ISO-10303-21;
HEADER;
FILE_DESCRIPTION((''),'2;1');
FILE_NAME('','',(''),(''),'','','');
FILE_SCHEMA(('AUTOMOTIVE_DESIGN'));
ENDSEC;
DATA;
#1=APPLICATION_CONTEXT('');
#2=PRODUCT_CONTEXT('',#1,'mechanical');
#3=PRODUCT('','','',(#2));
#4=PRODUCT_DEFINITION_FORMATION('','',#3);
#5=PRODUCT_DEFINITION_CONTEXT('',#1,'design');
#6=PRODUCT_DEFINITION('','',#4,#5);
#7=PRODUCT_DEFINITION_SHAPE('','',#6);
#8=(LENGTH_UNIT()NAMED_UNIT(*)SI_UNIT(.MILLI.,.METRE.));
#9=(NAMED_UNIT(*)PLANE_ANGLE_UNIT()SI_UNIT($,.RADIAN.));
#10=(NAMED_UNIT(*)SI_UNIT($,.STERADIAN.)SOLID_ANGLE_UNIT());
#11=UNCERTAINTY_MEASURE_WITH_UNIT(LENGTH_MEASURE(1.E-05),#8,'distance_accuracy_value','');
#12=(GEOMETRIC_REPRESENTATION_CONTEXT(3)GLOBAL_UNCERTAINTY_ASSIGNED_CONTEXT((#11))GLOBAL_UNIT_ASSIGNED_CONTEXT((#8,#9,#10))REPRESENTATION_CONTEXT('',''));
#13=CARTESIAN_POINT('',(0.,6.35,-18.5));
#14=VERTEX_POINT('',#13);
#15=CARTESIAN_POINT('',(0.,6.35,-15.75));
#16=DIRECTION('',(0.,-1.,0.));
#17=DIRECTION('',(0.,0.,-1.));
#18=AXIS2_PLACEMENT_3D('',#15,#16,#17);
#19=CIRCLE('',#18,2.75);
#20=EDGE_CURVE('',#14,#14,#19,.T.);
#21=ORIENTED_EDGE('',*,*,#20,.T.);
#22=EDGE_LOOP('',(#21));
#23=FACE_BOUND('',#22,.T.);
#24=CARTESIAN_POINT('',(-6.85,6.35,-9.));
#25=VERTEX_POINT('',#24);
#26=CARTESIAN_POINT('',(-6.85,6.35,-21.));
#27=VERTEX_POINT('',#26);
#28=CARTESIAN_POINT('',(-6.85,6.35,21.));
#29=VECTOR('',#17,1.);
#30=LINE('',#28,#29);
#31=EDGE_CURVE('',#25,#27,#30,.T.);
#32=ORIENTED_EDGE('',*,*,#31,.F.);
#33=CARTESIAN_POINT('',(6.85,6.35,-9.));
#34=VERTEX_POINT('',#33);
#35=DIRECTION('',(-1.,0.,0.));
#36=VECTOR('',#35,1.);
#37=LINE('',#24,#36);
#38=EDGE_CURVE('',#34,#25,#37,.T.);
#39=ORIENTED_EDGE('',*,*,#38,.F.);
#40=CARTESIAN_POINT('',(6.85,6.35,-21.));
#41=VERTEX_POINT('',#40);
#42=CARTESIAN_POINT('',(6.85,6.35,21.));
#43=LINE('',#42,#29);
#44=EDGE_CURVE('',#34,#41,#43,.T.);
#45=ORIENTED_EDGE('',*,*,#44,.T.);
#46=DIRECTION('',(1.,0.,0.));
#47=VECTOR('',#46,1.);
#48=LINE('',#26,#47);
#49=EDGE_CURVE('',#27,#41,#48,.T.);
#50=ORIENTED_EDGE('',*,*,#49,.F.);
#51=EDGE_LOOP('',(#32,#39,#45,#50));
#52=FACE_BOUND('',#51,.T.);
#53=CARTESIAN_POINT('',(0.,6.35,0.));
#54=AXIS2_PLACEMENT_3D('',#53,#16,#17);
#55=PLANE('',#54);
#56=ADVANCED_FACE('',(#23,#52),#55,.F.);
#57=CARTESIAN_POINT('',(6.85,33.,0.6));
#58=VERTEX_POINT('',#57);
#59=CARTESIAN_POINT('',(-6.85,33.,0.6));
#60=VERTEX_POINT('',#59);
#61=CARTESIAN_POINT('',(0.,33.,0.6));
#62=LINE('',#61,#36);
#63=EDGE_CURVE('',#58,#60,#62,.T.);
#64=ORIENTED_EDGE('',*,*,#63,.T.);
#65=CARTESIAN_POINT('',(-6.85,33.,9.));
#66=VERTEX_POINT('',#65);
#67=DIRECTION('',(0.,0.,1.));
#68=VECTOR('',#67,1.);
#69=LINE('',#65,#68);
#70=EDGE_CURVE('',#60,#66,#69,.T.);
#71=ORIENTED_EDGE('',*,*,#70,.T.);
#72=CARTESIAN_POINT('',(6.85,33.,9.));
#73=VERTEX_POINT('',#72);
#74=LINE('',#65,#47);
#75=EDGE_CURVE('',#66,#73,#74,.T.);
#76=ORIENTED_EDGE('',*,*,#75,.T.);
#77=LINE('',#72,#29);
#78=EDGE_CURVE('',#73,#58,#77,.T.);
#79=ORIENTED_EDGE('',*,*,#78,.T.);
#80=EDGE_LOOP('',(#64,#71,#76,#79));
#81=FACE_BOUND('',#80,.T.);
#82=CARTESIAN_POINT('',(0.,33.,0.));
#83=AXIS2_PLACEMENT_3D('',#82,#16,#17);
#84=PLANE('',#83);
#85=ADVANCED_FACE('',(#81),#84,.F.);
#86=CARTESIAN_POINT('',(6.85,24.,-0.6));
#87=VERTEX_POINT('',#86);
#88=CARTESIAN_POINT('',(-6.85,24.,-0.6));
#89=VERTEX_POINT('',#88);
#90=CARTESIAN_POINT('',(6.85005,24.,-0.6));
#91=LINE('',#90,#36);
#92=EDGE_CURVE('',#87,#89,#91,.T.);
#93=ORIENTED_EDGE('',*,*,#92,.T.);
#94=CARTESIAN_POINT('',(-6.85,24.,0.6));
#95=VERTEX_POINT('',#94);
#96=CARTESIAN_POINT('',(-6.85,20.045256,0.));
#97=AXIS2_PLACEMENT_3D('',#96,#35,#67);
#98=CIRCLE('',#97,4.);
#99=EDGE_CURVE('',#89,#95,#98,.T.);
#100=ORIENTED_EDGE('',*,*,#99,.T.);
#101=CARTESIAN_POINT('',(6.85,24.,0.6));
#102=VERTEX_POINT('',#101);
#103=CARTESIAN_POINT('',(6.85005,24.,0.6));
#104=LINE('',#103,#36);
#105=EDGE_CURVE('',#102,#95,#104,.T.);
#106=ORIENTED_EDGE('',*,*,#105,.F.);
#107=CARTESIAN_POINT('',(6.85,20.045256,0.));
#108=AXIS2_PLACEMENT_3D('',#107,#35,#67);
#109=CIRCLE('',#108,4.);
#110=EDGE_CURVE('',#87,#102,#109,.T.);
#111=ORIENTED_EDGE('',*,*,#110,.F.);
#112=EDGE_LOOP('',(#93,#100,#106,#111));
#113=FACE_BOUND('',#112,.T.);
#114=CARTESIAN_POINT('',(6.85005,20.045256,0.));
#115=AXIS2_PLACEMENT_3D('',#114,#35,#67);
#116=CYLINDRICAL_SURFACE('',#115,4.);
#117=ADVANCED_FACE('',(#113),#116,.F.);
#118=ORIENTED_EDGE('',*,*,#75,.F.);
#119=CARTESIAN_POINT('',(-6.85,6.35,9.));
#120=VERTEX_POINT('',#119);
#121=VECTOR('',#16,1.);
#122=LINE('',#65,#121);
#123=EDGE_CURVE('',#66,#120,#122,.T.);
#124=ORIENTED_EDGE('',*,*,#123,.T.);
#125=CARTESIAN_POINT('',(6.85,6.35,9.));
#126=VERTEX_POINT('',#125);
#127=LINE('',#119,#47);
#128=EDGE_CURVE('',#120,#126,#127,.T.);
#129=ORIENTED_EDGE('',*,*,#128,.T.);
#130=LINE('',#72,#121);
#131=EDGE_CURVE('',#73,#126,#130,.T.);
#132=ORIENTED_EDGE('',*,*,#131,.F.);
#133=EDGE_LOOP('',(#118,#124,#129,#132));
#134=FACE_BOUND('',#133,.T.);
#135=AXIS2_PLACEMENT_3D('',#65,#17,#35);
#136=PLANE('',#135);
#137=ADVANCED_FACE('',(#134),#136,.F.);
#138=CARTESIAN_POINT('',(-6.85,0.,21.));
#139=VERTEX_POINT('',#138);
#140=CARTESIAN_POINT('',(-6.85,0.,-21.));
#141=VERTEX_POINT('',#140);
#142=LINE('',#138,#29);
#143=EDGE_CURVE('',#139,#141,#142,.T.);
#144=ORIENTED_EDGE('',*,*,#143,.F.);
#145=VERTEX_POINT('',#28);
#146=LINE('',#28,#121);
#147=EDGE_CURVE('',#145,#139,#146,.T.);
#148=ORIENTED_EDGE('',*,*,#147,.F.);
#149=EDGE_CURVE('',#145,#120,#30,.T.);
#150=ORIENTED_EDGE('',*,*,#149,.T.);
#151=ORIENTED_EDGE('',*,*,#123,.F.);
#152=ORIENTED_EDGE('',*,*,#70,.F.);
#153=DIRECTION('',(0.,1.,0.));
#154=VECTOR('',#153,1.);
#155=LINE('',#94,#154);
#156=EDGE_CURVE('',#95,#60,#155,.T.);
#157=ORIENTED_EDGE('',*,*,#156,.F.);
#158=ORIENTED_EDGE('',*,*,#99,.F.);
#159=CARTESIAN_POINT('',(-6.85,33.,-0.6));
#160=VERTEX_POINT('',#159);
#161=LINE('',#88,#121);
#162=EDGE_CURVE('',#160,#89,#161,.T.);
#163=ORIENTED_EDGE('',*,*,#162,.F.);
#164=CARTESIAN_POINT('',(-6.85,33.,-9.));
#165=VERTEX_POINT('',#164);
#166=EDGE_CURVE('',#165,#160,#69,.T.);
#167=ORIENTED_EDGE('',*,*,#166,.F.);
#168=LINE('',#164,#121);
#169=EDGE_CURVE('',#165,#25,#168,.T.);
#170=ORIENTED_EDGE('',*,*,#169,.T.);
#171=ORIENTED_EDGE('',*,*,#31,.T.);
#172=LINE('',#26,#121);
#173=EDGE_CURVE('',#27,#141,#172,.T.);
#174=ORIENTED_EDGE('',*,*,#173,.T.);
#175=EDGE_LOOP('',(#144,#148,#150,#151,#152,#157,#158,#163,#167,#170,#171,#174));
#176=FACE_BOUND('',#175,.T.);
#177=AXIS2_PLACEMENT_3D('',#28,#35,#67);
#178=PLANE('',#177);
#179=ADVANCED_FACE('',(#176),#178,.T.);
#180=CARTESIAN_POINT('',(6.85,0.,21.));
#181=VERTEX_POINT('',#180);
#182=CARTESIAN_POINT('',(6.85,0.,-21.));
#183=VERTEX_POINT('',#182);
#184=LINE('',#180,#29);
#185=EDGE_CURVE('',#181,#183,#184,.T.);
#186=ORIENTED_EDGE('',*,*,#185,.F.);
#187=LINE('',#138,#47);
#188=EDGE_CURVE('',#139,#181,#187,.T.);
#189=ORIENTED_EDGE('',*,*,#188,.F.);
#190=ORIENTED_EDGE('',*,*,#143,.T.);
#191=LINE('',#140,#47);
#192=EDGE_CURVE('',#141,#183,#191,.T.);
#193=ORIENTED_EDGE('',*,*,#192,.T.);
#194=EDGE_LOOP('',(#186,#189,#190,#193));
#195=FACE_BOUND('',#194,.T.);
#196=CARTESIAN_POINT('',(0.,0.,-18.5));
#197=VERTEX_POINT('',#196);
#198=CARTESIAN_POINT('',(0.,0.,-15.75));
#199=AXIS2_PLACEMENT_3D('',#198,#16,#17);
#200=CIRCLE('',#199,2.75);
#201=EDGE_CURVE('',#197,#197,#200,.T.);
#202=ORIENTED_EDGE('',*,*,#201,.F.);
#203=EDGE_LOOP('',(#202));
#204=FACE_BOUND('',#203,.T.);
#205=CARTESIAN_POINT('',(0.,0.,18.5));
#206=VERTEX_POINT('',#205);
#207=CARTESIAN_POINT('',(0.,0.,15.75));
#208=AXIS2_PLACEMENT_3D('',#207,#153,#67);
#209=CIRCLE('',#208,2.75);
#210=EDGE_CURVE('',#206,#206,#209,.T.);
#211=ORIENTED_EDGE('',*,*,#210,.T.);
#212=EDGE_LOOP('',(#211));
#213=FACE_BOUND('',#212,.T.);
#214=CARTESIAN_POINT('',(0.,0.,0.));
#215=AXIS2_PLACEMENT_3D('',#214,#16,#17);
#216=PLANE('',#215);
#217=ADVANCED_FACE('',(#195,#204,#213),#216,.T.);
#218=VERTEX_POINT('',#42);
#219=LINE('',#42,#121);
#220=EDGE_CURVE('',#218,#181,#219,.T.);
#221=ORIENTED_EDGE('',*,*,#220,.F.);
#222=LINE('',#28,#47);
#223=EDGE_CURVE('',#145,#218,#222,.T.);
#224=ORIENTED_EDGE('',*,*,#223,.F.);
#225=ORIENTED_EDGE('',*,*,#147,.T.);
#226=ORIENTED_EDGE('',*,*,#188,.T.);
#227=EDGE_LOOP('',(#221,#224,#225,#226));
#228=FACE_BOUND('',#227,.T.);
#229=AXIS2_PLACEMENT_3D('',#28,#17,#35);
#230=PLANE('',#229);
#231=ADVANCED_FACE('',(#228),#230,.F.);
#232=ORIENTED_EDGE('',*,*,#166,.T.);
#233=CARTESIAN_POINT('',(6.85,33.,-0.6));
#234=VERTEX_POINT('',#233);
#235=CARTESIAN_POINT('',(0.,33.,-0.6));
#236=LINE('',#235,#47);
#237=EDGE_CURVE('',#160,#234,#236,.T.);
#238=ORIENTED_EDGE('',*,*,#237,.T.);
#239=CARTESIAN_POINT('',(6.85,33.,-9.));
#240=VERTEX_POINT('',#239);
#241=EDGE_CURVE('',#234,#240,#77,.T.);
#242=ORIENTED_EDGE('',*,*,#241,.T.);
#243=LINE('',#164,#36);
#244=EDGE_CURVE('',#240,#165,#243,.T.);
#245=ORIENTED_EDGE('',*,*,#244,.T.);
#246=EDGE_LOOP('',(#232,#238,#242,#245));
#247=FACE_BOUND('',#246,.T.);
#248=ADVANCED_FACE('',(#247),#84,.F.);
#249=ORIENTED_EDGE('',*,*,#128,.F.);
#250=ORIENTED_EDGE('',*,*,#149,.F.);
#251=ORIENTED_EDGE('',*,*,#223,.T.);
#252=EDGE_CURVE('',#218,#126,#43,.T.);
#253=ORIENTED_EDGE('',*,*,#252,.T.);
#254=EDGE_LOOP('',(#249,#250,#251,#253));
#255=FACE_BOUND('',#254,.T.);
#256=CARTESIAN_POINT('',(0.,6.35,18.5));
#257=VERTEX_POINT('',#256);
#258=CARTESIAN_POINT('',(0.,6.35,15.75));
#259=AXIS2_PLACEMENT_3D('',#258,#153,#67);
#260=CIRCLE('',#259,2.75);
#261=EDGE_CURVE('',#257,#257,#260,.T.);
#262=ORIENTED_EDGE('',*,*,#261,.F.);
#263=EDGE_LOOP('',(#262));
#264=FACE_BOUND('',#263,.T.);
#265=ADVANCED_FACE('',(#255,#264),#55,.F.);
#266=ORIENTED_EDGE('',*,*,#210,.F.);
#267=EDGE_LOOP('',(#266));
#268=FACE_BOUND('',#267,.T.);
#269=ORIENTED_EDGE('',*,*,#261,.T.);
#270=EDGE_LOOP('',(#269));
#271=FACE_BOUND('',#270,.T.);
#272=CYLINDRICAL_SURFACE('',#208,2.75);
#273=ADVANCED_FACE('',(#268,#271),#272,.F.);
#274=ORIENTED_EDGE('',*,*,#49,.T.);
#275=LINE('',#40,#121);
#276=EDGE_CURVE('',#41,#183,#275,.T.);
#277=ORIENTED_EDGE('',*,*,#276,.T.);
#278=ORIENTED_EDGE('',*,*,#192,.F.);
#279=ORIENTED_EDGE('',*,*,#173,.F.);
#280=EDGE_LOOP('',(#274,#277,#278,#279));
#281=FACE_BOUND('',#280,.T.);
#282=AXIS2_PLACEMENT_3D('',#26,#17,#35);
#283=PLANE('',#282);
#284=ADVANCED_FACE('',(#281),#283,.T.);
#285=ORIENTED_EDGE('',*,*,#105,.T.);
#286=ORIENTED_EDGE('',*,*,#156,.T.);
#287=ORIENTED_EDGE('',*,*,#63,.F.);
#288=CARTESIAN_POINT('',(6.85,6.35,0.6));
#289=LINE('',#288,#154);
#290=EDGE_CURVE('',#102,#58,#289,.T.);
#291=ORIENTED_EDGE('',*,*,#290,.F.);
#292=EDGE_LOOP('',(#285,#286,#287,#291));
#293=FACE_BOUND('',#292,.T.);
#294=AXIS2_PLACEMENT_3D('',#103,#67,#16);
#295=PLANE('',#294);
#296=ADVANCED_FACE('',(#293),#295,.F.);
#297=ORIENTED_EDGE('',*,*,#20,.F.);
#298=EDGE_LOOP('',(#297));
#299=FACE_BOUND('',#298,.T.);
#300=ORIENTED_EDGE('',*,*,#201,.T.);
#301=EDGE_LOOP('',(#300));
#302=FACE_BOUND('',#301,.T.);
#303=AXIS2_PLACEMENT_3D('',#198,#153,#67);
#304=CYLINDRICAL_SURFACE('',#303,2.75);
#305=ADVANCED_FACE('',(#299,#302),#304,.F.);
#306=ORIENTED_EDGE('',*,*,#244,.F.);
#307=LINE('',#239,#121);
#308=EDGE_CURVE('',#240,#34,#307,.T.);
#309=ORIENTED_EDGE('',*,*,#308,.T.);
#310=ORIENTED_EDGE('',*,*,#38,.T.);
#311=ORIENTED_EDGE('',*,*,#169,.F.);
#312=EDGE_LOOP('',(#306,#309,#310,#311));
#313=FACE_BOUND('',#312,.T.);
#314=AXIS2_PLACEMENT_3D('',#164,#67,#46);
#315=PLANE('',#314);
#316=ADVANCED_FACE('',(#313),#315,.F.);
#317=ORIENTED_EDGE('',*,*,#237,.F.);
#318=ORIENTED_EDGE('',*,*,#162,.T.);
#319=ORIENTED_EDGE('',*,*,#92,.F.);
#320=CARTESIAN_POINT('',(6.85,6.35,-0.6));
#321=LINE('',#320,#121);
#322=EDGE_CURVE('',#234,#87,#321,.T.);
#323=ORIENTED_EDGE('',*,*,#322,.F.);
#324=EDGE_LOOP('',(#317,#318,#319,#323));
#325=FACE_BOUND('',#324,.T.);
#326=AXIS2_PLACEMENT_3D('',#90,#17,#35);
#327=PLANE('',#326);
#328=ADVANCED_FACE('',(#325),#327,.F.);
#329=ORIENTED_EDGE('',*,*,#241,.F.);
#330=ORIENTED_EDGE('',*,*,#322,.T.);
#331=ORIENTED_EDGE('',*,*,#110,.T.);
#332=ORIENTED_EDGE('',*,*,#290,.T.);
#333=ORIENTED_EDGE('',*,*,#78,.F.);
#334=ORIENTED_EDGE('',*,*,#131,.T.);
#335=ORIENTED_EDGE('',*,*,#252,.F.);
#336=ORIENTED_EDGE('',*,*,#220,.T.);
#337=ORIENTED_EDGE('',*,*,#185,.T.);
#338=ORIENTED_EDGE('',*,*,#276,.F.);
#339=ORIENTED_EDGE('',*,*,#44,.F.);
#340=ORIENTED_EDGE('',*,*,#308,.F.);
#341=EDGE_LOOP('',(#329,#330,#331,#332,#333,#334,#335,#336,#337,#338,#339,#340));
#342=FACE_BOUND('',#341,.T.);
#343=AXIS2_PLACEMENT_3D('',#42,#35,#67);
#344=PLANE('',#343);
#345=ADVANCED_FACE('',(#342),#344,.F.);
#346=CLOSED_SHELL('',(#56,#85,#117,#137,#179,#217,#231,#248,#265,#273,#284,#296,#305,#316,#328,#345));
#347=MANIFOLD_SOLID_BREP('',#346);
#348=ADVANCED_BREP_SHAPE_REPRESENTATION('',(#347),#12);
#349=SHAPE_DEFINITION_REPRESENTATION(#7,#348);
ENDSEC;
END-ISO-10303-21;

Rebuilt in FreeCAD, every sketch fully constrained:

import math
import FreeCAD as App
import Part
import Sketcher
from FreeCAD import Vector


def add_polygon(sketch, points):
    """Adds a closed chain of lines whose ends are joined by coincident constraints."""
    first, n = sketch.GeometryCount, len(points)
    for a, b in zip(points, points[1:] + points[:1]):
        sketch.addGeometry(Part.LineSegment(App.Vector(*a, 0), App.Vector(*b, 0)), False)
    for i in range(n):
        sketch.addConstraint(Sketcher.Constraint("Coincident", first + i, 2, first + (i + 1) % n, 1))

doc = App.newDocument("Part")
body = doc.addObject("PartDesign::Body", "Body")

sketch1 = body.newObject("Sketcher::SketchObject", "Sketch")
sketch1.AttachmentSupport = (doc.getObject("XZ_Plane"), [""])
sketch1.MapMode = "FlatFace"
add_polygon(sketch1, [(-6.85, -21), (-6.85, 21), (6.85, 21), (6.85, -21)])
sketch1.addConstraint([
    Sketcher.Constraint("Vertical", 0),
    Sketcher.Constraint("Horizontal", 1),
    Sketcher.Constraint("Vertical", 2),
    Sketcher.Constraint("Horizontal", 3),
    Sketcher.Constraint("Symmetric", 0, 2, 2, 2, -1, 1),
    Sketcher.Constraint("DistanceY", 0, 1, 0, 2, 42.0),
    Sketcher.Constraint("DistanceX", 1, 1, 1, 2, 13.7),
])
pad1 = body.newObject("PartDesign::Pad", "Pad")
pad1.Profile = sketch1
pad1.Length = 6.35
pad1.Reversed = True

sketch2 = body.newObject("Sketcher::SketchObject", "Sketch001")
sketch2.AttachmentSupport = (doc.getObject("XZ_Plane"), [""])
sketch2.MapMode = "FlatFace"
sketch2.AttachmentOffset = App.Placement(Vector(0, 0, -6.35), App.Rotation())
add_polygon(sketch2, [(-6.85, -9), (-6.85, 9), (6.85, 9), (6.85, -9)])
sketch2.addConstraint([
    Sketcher.Constraint("Vertical", 0),
    Sketcher.Constraint("Horizontal", 1),
    Sketcher.Constraint("Vertical", 2),
    Sketcher.Constraint("Horizontal", 3),
    Sketcher.Constraint("Symmetric", 0, 2, 2, 2, -1, 1),
    Sketcher.Constraint("DistanceY", 0, 1, 0, 2, 18.0),
    Sketcher.Constraint("DistanceX", 1, 1, 1, 2, 13.7),
])
pad2 = body.newObject("PartDesign::Pad", "Pad001")
pad2.Profile = sketch2
pad2.Length = 26.65
pad2.Reversed = True

sketch3 = body.newObject("Sketcher::SketchObject", "Sketch002")
sketch3.AttachmentSupport = (doc.getObject("YZ_Plane"), [""])
sketch3.MapMode = "FlatFace"
sketch3.AttachmentOffset = App.Placement(Vector(0, 0, -6.85), App.Rotation())
sketch3.addGeometry([
    Part.LineSegment(Vector(33, -0.6, 0), Vector(24, -0.6, 0)),
    Part.ArcOfCircle(Part.Circle(Vector(20.045256, 0, 0), Vector(0, 0, 1), 4), math.radians(8.626927), math.radians(351.373073)),
    Part.LineSegment(Vector(24, 0.6, 0), Vector(33, 0.6, 0)),
    Part.LineSegment(Vector(33, 0.6, 0), Vector(33, -0.6, 0)),
], False)
sketch3.addConstraint([
    Sketcher.Constraint("Coincident", 0, 2, 1, 2),
    Sketcher.Constraint("Coincident", 1, 1, 2, 1),
    Sketcher.Constraint("Coincident", 2, 2, 3, 1),
    Sketcher.Constraint("Coincident", 3, 2, 0, 1),
    Sketcher.Constraint("Horizontal", 0),
    Sketcher.Constraint("Horizontal", 2),
    Sketcher.Constraint("Vertical", 3),
    Sketcher.Constraint("Symmetric", 0, 2, 1, 1, -1),
    Sketcher.Constraint("Radius", 1, 4.0),
    Sketcher.Constraint("DistanceX", 0, 2, 0, 1, 9.0),
    Sketcher.Constraint("DistanceY", 3, 2, 3, 1, 1.2),
    Sketcher.Constraint("DistanceX", -1, 1, 0, 2, 24.0),
])
pocket1 = body.newObject("PartDesign::Pocket", "Pocket")
pocket1.Profile = sketch3
pocket1.Type = "ThroughAll"
pocket1.Reversed = True

sketch4 = body.newObject("Sketcher::SketchObject", "Sketch003")
sketch4.AttachmentSupport = (doc.getObject("XZ_Plane"), [""])
sketch4.MapMode = "FlatFace"
sketch4.AttachmentOffset = App.Placement(Vector(0, 0, -6.35), App.Rotation())
sketch4.addGeometry(Part.Circle(Vector(0, 15.75, 0), Vector(0, 0, 1), 2.75), False)
sketch4.addConstraint([
    Sketcher.Constraint("PointOnObject", 0, 3, -2),
    Sketcher.Constraint("Diameter", 0, 5.5),
    Sketcher.Constraint("DistanceY", -1, 1, 0, 3, 15.75),
])
pocket2 = body.newObject("PartDesign::Pocket", "Pocket001")
pocket2.Profile = sketch4
pocket2.Type = "ThroughAll"
pocket2.Reversed = True
doc.recompute()

mirrored = body.newObject("PartDesign::Mirrored", "Mirrored")
mirrored.Originals = [pocket2]
mirrored.MirrorPlane = (doc.getObject("XY_Plane"), [""])
body.Tip = mirrored

doc.recompute()
